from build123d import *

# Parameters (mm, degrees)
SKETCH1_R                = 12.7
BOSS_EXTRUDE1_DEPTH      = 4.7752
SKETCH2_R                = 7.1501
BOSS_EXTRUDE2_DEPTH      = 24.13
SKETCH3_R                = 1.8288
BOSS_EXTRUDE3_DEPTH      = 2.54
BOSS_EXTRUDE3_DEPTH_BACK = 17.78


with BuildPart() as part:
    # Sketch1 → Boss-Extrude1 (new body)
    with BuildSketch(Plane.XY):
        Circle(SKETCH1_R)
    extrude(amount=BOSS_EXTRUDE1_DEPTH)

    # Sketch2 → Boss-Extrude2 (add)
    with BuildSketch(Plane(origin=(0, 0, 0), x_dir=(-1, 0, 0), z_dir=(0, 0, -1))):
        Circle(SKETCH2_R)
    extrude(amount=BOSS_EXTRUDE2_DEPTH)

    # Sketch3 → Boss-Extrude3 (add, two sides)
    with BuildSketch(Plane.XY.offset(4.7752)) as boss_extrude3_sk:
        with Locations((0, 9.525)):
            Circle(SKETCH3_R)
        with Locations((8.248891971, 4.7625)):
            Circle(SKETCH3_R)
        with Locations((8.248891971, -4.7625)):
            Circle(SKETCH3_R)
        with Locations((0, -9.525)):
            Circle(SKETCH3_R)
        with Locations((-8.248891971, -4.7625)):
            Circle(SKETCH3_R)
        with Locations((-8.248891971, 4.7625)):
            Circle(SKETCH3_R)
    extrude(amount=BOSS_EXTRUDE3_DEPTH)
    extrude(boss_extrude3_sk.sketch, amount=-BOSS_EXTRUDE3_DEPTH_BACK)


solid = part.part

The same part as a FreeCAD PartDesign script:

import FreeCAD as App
import Part
import Sketcher
from FreeCAD import Vector
Q = App.Units.Quantity

doc = App.newDocument("Part")
body = doc.addObject("PartDesign::Body", "Body")

sketch1 = body.newObject("Sketcher::SketchObject", "Sketch")
sketch1.AttachmentSupport = (doc.getObject("XY_Plane"), [""])
sketch1.MapMode = "FlatFace"
sketch1.addGeometry(Part.Circle(Vector(0, 0, 0), Vector(0, 0, 1), 12.7), False)
sketch1.addConstraint([
    Sketcher.Constraint("Coincident", 0, 3, -1, 1),
    Sketcher.Constraint("Diameter", 0, Q("1 in")),
])
pad1 = body.newObject("PartDesign::Pad", "Pad")
pad1.Profile = sketch1
pad1.Length = Q("0.188 in")

sketch2 = body.newObject("Sketcher::SketchObject", "Sketch001")
sketch2.AttachmentSupport = (doc.getObject("XY_Plane"), [""])
sketch2.MapMode = "FlatFace"
sketch2.addGeometry(Part.Circle(Vector(0, 0, 0), Vector(0, 0, 1), 7.1501), False)
sketch2.addConstraint([
    Sketcher.Constraint("Coincident", 0, 3, -1, 1),
    Sketcher.Constraint("Diameter", 0, Q("0.563 in")),
])
pad2 = body.newObject("PartDesign::Pad", "Pad001")
pad2.Profile = sketch2
pad2.Length = Q("0.95 in")
pad2.Reversed = True

sketch3 = body.newObject("Sketcher::SketchObject", "Sketch002")
sketch3.AttachmentSupport = (doc.getObject("XY_Plane"), [""])
sketch3.MapMode = "FlatFace"
sketch3.AttachmentOffset = App.Placement(Vector(0, 0, 0.188 * 25.4), App.Rotation())
sketch3.addGeometry([
    Part.Circle(Vector(0, 9.525, 0), Vector(0, 0, 1), 1.8288),
    Part.Circle(Vector(8.248892, 4.7625, 0), Vector(0, 0, 1), 1.8288),
    Part.Circle(Vector(8.248892, -4.7625, 0), Vector(0, 0, 1), 1.8288),
    Part.Circle(Vector(0, -9.525, 0), Vector(0, 0, 1), 1.8288),
    Part.Circle(Vector(-8.248892, -4.7625, 0), Vector(0, 0, 1), 1.8288),
    Part.Circle(Vector(-8.248892, 4.7625, 0), Vector(0, 0, 1), 1.8288),
], False)
sketch3.addConstraint([
    Sketcher.Constraint("Equal", 0, 1),
    Sketcher.Constraint("Equal", 1, 2),
    Sketcher.Constraint("Equal", 2, 3),
    Sketcher.Constraint("Equal", 3, 4),
    Sketcher.Constraint("Equal", 4, 5),
    Sketcher.Constraint("Symmetric", 0, 3, 3, 3, -1, 1),
    Sketcher.Constraint("Symmetric", 1, 3, 4, 3, -1, 1),
    Sketcher.Constraint("Symmetric", 2, 3, 5, 3, -1, 1),
    Sketcher.Constraint("Symmetric", 2, 3, 4, 3, -2),
    Sketcher.Constraint("PointOnObject", 0, 3, -2),
    Sketcher.Constraint("Diameter", 0, Q("0.144 in")),
    Sketcher.Constraint("DistanceY", 3, 3, 0, 3, Q("0.75 in")),
    Sketcher.Constraint("DistanceY", -1, 1, 1, 3, Q("0.1875 in")),
    Sketcher.Constraint("DistanceX", -1, 1, 1, 3, Q("8.248892 mm")),
])
pad3 = body.newObject("PartDesign::Pad", "Pad002")
pad3.Profile = sketch3
pad3.Type = "TwoLengths"
pad3.Length = Q("0.1 in")
pad3.Length2 = Q("0.7 in")

doc.recompute()
